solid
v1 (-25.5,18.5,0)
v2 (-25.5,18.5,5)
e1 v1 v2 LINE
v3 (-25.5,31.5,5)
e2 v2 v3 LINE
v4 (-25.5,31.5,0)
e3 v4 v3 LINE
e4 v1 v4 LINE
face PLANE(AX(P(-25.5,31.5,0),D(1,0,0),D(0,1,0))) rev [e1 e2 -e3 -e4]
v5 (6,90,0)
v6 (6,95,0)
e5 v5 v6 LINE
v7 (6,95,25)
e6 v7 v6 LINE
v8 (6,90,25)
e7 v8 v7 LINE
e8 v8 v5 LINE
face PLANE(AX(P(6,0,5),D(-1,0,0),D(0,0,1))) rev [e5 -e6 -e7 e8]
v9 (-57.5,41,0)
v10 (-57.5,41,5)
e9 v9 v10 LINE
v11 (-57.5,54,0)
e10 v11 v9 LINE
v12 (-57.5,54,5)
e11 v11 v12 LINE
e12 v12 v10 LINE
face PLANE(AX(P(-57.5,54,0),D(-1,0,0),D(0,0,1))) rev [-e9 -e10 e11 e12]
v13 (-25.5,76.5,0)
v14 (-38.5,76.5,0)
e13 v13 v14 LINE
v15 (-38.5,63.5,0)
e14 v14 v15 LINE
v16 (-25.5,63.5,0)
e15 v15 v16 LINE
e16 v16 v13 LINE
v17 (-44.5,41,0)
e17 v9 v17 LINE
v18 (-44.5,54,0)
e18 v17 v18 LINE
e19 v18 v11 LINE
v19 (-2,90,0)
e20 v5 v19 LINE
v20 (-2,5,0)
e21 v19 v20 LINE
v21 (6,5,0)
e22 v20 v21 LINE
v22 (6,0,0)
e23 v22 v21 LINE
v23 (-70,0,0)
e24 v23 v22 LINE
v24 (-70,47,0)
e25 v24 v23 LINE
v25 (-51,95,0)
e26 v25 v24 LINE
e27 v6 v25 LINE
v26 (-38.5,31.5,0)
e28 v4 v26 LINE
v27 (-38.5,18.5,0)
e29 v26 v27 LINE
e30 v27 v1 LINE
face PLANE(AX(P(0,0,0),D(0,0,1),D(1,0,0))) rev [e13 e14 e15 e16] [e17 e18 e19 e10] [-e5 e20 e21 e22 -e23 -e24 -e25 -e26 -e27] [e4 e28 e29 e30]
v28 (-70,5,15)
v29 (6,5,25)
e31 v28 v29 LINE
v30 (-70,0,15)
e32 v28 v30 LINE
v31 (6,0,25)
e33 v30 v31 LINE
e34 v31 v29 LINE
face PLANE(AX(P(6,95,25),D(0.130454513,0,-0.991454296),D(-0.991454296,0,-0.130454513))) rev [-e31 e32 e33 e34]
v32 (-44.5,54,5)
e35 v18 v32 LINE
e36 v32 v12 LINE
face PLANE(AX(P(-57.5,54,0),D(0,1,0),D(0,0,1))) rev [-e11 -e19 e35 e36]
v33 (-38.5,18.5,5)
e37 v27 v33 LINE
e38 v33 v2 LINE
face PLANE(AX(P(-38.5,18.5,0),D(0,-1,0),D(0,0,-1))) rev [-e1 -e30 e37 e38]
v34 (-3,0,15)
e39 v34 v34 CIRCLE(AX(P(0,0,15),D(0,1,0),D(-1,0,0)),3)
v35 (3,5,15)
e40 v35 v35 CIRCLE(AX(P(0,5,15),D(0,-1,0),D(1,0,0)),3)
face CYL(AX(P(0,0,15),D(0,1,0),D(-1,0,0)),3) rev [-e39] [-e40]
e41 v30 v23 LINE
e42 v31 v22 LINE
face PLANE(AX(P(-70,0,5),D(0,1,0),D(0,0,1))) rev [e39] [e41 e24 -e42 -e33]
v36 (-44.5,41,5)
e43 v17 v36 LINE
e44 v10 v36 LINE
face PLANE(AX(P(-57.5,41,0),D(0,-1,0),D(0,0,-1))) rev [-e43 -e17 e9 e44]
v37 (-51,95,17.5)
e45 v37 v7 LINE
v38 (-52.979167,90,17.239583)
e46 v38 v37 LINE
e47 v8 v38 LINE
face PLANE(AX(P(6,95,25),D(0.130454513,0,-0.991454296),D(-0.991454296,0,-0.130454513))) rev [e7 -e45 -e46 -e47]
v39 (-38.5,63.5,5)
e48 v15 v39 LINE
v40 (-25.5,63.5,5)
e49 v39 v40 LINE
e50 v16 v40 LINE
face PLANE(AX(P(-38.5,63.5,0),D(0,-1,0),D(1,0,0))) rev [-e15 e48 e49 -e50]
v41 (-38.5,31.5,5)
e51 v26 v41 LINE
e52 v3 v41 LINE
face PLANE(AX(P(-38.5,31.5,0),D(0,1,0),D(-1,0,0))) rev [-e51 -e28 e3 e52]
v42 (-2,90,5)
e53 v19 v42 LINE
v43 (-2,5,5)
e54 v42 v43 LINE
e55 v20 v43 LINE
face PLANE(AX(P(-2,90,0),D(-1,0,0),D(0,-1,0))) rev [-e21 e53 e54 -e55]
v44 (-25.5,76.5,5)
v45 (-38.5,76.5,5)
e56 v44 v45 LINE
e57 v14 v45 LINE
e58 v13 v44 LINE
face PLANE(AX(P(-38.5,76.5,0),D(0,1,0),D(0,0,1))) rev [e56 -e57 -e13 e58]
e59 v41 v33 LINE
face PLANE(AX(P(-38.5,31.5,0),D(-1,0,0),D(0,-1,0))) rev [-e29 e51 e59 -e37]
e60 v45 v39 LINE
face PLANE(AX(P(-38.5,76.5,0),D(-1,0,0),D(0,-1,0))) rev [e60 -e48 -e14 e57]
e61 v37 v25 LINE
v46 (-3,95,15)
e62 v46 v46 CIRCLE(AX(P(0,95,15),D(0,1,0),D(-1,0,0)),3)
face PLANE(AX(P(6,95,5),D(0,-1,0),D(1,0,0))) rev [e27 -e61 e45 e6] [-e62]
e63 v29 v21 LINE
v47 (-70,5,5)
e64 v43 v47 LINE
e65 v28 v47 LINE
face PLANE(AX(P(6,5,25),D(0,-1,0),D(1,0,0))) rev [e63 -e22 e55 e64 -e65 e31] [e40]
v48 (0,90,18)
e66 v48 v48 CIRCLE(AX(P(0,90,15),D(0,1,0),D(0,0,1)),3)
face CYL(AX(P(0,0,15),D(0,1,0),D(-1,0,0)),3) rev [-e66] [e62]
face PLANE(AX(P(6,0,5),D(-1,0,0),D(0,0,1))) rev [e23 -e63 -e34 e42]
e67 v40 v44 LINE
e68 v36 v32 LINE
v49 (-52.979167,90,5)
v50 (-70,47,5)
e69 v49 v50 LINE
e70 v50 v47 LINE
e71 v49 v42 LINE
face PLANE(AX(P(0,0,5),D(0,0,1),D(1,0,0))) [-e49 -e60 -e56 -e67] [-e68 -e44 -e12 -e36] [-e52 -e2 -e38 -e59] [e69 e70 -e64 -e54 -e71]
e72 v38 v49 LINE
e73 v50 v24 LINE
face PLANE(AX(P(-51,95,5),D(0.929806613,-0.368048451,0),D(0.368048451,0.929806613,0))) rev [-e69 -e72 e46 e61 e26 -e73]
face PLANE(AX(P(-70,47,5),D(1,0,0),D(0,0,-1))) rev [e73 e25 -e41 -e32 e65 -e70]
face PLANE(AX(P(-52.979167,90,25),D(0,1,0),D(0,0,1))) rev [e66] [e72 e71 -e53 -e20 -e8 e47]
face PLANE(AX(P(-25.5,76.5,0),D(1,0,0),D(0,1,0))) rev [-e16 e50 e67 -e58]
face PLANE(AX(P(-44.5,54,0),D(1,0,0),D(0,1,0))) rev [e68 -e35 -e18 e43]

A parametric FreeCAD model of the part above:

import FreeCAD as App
import Part
import Sketcher
Q = App.Units.Quantity


def add_polygon(sketch, points):
    """Adds a closed chain of lines whose ends are joined by coincident constraints."""
    first, n = sketch.GeometryCount, len(points)
    for a, b in zip(points, points[1:] + points[:1]):
        sketch.addGeometry(Part.LineSegment(App.Vector(*a, 0), App.Vector(*b, 0)), False)
    for i in range(n):
        sketch.addConstraint(Sketcher.Constraint("Coincident", first + i, 2, first + (i + 1) % n, 1))

doc = App.newDocument("Part")
body = doc.addObject("PartDesign::Body", "Body")

# Sketch on XY plane
sketch1 = body.newObject("Sketcher::SketchObject", "Sketch")
sketch1.AttachmentSupport = (doc.getObject("XY_Plane"), [""])
sketch1.MapMode = "FlatFace"
add_polygon(sketch1, [(-70, 0), (6, 0), (6, 95), (-51, 95), (-70, 47)])  # lines 0-4
sketch1.addConstraint(Sketcher.Constraint("Horizontal", 0))
sketch1.addConstraint(Sketcher.Constraint("Vertical", 1))
sketch1.addConstraint(Sketcher.Constraint("Horizontal", 2))
sketch1.addConstraint(Sketcher.Constraint("Vertical", 4))
sketch1.addConstraint(Sketcher.Constraint("PointOnObject", 0, 2, -1))
sketch1.addConstraint(Sketcher.Constraint("DistanceX", 0, 1, 0, 2, Q("76 mm")))
sketch1.addConstraint(Sketcher.Constraint("DistanceX", 2, 2, 2, 1, Q("57 mm")))
sketch1.addConstraint(Sketcher.Constraint("DistanceY", 1, 1, 1, 2, Q("95 mm")))
sketch1.addConstraint(Sketcher.Constraint("DistanceY", 4, 2, 4, 1, Q("47 mm")))
sketch1.addConstraint(Sketcher.Constraint("DistanceX", -1, 1, 0, 2, Q("6 mm")))
pad1 = body.newObject("PartDesign::Pad", "Pad")
pad1.Profile = sketch1
pad1.Length = 5

# Sketch on XY plane
sketch2 = body.newObject("Sketcher::SketchObject", "Sketch001")
sketch2.AttachmentSupport = (doc.getObject("XY_Plane"), [""])
sketch2.MapMode = "FlatFace"
sketch2.AttachmentOffset = App.Placement(App.Vector(0, 0, 5), App.Rotation())
add_polygon(sketch2, [(-38, 76), (-38, 64), (-26, 64), (-26, 76)])  # lines 0-3
add_polygon(sketch2, [(-38, 32), (-38, 18), (-26, 18), (-26, 32)])  # lines 4-7
add_polygon(sketch2, [(-58, 54), (-58, 41), (-44, 41), (-44, 54)])  # lines 8-11
sketch2.addConstraint(Sketcher.Constraint("Vertical", 0))
sketch2.addConstraint(Sketcher.Constraint("Horizontal", 1))
sketch2.addConstraint(Sketcher.Constraint("Vertical", 2))
sketch2.addConstraint(Sketcher.Constraint("Horizontal", 3))
sketch2.addConstraint(Sketcher.Constraint("Vertical", 4))
sketch2.addConstraint(Sketcher.Constraint("Horizontal", 5))
sketch2.addConstraint(Sketcher.Constraint("Vertical", 6))
sketch2.addConstraint(Sketcher.Constraint("Horizontal", 7))
sketch2.addConstraint(Sketcher.Constraint("Vertical", 8))
sketch2.addConstraint(Sketcher.Constraint("Horizontal", 9))
sketch2.addConstraint(Sketcher.Constraint("Vertical", 10))
sketch2.addConstraint(Sketcher.Constraint("Horizontal", 11))
sketch2.addConstraint(Sketcher.Constraint("Vertical", 3, 2, 4, 2))
sketch2.addConstraint(Sketcher.Constraint("Vertical", 2, 2, 5, 2))
sketch2.addConstraint(Sketcher.Constraint("Equal", 7, 9))
sketch2.addConstraint(Sketcher.Constraint("Equal", 11, 0))
sketch2.addConstraint(Sketcher.Constraint("Equal", 2, 4))
sketch2.addConstraint(Sketcher.Constraint("Equal", 6, 8))
sketch2.addConstraint(Sketcher.Constraint("DistanceX", 1, 1, 1, 2, Q("13 mm")))
sketch2.addConstraint(Sketcher.Constraint("DistanceY", -1, 1, 8, 2, Q("41 mm")))
sketch2.addConstraint(Sketcher.Constraint("DistanceY", 4, 2, 0, 2, Q("45 mm")))
sketch2.addConstraint(Sketcher.Constraint("DistanceX", 8, 2, 7, 2, Q("19 mm")))
sketch2.addConstraint(Sketcher.Constraint("DistanceX", 0, 2, -1, 1, Q("38.5 mm")))
sketch2.addConstraint(Sketcher.Constraint("DistanceY", -1, 1, 0, 2, Q("63.5 mm")))
pocket1 = body.newObject("PartDesign::Pocket", "Pocket")
pocket1.Profile = sketch2
pocket1.Type = "ThroughAll"

# Sketch on XY plane
sketch3 = body.newObject("Sketcher::SketchObject", "Sketch002")
sketch3.AttachmentSupport = (doc.getObject("XY_Plane"), [""])
sketch3.MapMode = "FlatFace"
sketch3.AttachmentOffset = App.Placement(App.Vector(0, 0, 5), App.Rotation())
add_polygon(sketch3, [(-51, 95), (-53, 90), (6, 90), (6, 95)])  # lines 0-3
add_polygon(sketch3, [(-70, 5), (-70, 0), (6, 0), (6, 5)])  # lines 4-7
sketch3.addConstraint(Sketcher.Constraint("Horizontal", 1))
sketch3.addConstraint(Sketcher.Constraint("Vertical", 2))
sketch3.addConstraint(Sketcher.Constraint("Horizontal", 3))
sketch3.addConstraint(Sketcher.Constraint("Vertical", 4))
sketch3.addConstraint(Sketcher.Constraint("Horizontal", 5))
sketch3.addConstraint(Sketcher.Constraint("Vertical", 6))
sketch3.addConstraint(Sketcher.Constraint("Horizontal", 7))
sketch3.addConstraint(Sketcher.Constraint("PointOnObject", 4, 2, -1))
sketch3.addConstraint(Sketcher.Constraint("Vertical", 2, 2, 5, 2))
sketch3.addConstraint(Sketcher.Constraint("Equal", 2, 4))
sketch3.addConstraint(Sketcher.Constraint("DistanceX", 3, 2, 3, 1, Q("57 mm")))
sketch3.addConstraint(Sketcher.Constraint("DistanceX", 5, 1, 5, 2, Q("76 mm")))
sketch3.addConstraint(Sketcher.Constraint("DistanceY", 2, 1, 2, 2, Q("5 mm")))
sketch3.addConstraint(Sketcher.Constraint("DistanceY", -1, 1, 0, 2, Q("90 mm")))
sketch3.addConstraint(Sketcher.Constraint("DistanceX", -1, 1, 1, 2, Q("6 mm")))
sketch3.addConstraint(Sketcher.Constraint("DistanceX", 1, 1, 1, 2, Q("58.979167 mm")))
pad2 = body.newObject("PartDesign::Pad", "Pad001")
pad2.Profile = sketch3
pad2.Length = 20

# Sketch on XZ plane
sketch4 = body.newObject("Sketcher::SketchObject", "Sketch003")
sketch4.AttachmentSupport = (doc.getObject("XZ_Plane"), [""])
sketch4.MapMode = "FlatFace"
add_polygon(sketch4, [(-70, 15), (6, 25), (-70, 25)])  # lines 0-2
sketch4.addConstraint(Sketcher.Constraint("Horizontal", 1))
sketch4.addConstraint(Sketcher.Constraint("Vertical", 2))
sketch4.addConstraint(Sketcher.Constraint("DistanceX", 1, 2, 1, 1, Q("76 mm")))
sketch4.addConstraint(Sketcher.Constraint("DistanceY", 2, 2, 2, 1, Q("10 mm")))
sketch4.addConstraint(Sketcher.Constraint("DistanceX", -1, 1, 0, 2, Q("6 mm")))
sketch4.addConstraint(Sketcher.Constraint("DistanceY", -1, 1, 0, 2, Q("25 mm")))
pocket2 = body.newObject("PartDesign::Pocket", "Pocket001")
pocket2.Profile = sketch4
pocket2.Type = "ThroughAll"

# Sketch on XZ plane
sketch5 = body.newObject("Sketcher::SketchObject", "Sketch004")
sketch5.AttachmentSupport = (doc.getObject("XZ_Plane"), [""])
sketch5.MapMode = "FlatFace"
sketch5.AttachmentOffset = App.Placement(App.Vector(0, 0, -95), App.Rotation())
sketch5.addGeometry(Part.Circle(App.Vector(0, 15, 0), App.Vector(0, 0, 1), 3), False)
sketch5.addConstraint(Sketcher.Constraint("PointOnObject", 0, 3, -2))
sketch5.addConstraint(Sketcher.Constraint("Diameter", 0, Q("6 mm")))
sketch5.addConstraint(Sketcher.Constraint("DistanceY", -1, 1, 0, 3, Q("15 mm")))
pocket3 = body.newObject("PartDesign::Pocket", "Pocket002")
pocket3.Profile = sketch5
pocket3.Type = "ThroughAll"
pocket3.Reversed = True

# Sketch on XY plane
sketch6 = body.newObject("Sketcher::SketchObject", "Sketch005")
sketch6.AttachmentSupport = (doc.getObject("XY_Plane"), [""])
sketch6.MapMode = "FlatFace"
sketch6.AttachmentOffset = App.Placement(App.Vector(0, 0, 5), App.Rotation())
add_polygon(sketch6, [(-2, 90), (-2, 5), (6, 5), (6, 90)])  # lines 0-3
sketch6.addConstraint(Sketcher.Constraint("Vertical", 0))
sketch6.addConstraint(Sketcher.Constraint("Horizontal", 1))
sketch6.addConstraint(Sketcher.Constraint("Vertical", 2))
sketch6.addConstraint(Sketcher.Constraint("Horizontal", 3))
sketch6.addConstraint(Sketcher.Constraint("DistanceX", 1, 1, 1, 2, Q("8 mm")))
sketch6.addConstraint(Sketcher.Constraint("DistanceY", 0, 2, 0, 1, Q("85 mm")))
sketch6.addConstraint(Sketcher.Constraint("DistanceX", 0, 2, -1, 1, Q("2 mm")))
sketch6.addConstraint(Sketcher.Constraint("DistanceY", -1, 1, 0, 2, Q("5 mm")))
pocket4 = body.newObject("PartDesign::Pocket", "Pocket003")
pocket4.Profile = sketch6
pocket4.Type = "ThroughAll"

doc.recompute()
